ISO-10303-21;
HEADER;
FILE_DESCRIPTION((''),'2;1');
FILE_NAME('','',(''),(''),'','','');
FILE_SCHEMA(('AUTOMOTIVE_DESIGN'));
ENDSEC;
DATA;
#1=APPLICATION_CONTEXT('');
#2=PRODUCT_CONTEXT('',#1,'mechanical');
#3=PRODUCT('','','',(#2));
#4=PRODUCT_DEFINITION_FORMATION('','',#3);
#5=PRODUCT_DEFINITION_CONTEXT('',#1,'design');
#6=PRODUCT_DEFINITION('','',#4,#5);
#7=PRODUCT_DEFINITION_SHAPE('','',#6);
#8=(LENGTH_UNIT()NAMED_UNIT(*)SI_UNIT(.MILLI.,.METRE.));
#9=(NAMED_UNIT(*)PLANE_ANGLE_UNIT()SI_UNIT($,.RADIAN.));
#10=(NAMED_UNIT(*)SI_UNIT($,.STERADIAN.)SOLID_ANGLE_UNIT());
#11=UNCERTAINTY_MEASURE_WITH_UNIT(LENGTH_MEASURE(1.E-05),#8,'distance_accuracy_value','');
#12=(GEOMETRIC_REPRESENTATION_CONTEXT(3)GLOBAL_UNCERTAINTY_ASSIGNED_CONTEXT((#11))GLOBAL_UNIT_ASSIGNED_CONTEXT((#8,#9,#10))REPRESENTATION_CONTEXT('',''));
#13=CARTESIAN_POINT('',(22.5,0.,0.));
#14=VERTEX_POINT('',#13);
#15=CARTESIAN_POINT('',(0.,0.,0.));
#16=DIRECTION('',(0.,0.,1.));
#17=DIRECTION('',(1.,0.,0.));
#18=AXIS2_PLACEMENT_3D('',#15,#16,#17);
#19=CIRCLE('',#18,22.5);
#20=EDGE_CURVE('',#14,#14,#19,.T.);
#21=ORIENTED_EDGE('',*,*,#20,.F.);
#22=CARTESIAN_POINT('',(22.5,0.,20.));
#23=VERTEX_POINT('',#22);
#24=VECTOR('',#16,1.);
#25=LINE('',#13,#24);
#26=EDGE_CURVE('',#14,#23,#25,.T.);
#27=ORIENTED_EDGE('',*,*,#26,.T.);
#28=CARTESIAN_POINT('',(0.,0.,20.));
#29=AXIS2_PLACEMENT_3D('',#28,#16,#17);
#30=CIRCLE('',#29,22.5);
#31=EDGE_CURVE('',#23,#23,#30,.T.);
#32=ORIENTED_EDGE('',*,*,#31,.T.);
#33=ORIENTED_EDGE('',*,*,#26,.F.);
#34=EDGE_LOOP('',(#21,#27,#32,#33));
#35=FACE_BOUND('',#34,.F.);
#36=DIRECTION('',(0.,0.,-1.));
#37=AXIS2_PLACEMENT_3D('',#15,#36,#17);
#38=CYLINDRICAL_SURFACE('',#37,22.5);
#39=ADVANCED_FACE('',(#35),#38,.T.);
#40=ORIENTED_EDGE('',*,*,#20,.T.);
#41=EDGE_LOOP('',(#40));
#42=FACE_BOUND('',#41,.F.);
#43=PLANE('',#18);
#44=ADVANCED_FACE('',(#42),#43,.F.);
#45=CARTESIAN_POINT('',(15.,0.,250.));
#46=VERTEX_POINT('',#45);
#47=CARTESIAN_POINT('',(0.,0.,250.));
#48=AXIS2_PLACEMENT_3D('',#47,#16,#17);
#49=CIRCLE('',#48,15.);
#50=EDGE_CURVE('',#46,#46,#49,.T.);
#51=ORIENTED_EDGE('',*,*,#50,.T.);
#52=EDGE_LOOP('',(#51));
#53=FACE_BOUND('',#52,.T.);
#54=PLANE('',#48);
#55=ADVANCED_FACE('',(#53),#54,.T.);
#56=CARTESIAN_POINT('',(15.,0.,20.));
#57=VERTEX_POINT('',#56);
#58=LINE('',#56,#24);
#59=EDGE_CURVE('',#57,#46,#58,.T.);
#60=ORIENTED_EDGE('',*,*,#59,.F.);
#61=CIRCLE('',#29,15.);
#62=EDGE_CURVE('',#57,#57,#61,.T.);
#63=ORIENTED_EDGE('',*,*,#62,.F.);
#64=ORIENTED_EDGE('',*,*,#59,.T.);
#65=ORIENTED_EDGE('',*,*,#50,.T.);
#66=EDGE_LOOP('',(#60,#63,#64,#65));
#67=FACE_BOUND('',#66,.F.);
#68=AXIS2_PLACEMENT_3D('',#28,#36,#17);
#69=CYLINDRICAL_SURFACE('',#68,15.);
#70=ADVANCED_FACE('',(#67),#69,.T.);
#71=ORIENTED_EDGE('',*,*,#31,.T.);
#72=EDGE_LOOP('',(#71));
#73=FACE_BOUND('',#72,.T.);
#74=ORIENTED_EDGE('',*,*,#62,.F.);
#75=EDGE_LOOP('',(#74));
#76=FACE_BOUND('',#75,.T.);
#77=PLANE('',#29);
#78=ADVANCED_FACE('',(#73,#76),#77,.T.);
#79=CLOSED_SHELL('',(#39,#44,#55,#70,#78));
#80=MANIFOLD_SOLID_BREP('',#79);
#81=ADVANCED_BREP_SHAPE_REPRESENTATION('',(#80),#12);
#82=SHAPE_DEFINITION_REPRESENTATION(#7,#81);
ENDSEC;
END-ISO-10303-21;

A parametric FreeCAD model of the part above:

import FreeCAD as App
import Part
import Sketcher
Q = App.Units.Quantity

doc = App.newDocument("Part")
body = doc.addObject("PartDesign::Body", "Body")

# Sketch on XY plane
sketch1 = doc.addObject("Sketcher::SketchObject", "Sketch")
body.addObject(sketch1)
sketch1.AttachmentSupport = (doc.XY_Plane, [""])
sketch1.MapMode = "FlatFace"
sketch1.addGeometry(Part.Circle(App.Vector(0, 0, 0), App.Vector(0, 0, 1), 22.5), False)
sketch1.addConstraint([
    Sketcher.Constraint("Coincident", 0, 3, -1, 1),
    Sketcher.Constraint("Diameter", 0, Q("45 mm")),
])
pad1 = doc.addObject("PartDesign::Pad", "Pad")
body.addObject(pad1)
pad1.Profile = sketch1
pad1.Length = 20

# Sketch on XY plane
sketch2 = doc.addObject("Sketcher::SketchObject", "Sketch001")
body.addObject(sketch2)
sketch2.AttachmentSupport = (doc.XY_Plane, [""])
sketch2.MapMode = "FlatFace"
sketch2.AttachmentOffset = App.Placement(App.Vector(0, 0, 20), App.Rotation())
sketch2.addGeometry(Part.Circle(App.Vector(0, 0, 0), App.Vector(0, 0, 1), 15), False)
sketch2.addConstraint([
    Sketcher.Constraint("Coincident", 0, 3, -1, 1),
    Sketcher.Constraint("Diameter", 0, Q("30 mm")),
])
pad2 = doc.addObject("PartDesign::Pad", "Pad001")
body.addObject(pad2)
pad2.Profile = sketch2
pad2.Length = 230

doc.recompute()
